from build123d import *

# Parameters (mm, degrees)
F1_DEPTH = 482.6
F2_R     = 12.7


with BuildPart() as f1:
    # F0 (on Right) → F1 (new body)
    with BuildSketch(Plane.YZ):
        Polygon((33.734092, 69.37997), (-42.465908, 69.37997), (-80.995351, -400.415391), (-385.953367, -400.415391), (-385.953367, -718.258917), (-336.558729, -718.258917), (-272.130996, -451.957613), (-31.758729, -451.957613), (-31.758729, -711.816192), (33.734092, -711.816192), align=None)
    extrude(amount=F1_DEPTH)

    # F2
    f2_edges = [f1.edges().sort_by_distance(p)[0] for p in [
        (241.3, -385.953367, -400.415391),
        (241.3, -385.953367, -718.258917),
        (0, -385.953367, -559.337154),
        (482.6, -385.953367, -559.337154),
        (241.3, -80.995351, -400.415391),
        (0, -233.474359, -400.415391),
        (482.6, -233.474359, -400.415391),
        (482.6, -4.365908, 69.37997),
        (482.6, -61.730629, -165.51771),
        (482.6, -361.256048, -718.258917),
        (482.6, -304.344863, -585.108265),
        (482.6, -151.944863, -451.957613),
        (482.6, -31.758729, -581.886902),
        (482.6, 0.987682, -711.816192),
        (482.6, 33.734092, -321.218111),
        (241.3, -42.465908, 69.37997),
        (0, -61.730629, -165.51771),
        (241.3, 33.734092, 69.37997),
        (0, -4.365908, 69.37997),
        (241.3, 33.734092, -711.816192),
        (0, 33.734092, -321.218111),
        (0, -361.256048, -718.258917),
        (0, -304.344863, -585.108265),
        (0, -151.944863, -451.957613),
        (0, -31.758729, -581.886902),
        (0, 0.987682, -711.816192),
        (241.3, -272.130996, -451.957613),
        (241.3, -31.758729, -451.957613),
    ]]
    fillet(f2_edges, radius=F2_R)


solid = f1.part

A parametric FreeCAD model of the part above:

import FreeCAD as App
import Part
import Sketcher
Q = App.Units.Quantity


def edges_at(feature, points):
    """Names of the edges that pass closest to the given points."""
    edges = feature.Shape.Edges
    near = lambda p: min(range(len(edges)), key=lambda i: edges[i].distToShape(Part.Vertex(*p))[0])
    return sorted({f"Edge{near(p) + 1}" for p in points})


def add_polygon(sketch, points):
    """Adds a closed chain of lines whose ends are joined by coincident constraints."""
    first, n = sketch.GeometryCount, len(points)
    for a, b in zip(points, points[1:] + points[:1]):
        sketch.addGeometry(Part.LineSegment(App.Vector(*a, 0), App.Vector(*b, 0)), False)
    for i in range(n):
        sketch.addConstraint(Sketcher.Constraint("Coincident", first + i, 2, first + (i + 1) % n, 1))

doc = App.newDocument("Part")
params = doc.addObject("Spreadsheet::Sheet", "Params")
for row, (alias, value) in enumerate([
    ("sketch1_width", "3 in"),
    ("pad1_length", "19 in"),
    ("fillet_radius", "0.5 in"),
], start=1):
    params.set(f"A{row}", alias)
    params.set(f"B{row}", "=" + value)
    params.setAlias(f"B{row}", alias)

body = doc.addObject("PartDesign::Body", "Body")

# Sketch on YZ plane
sketch1 = body.newObject("Sketcher::SketchObject", "Sketch")
sketch1.AttachmentSupport = (doc.getObject("YZ_Plane"), [""])
sketch1.MapMode = "FlatFace"
add_polygon(sketch1, [(33.734092, 69.37997), (-42.465908, 69.37997), (-80.995351, -400.415391), (-385.953367, -400.415391), (-385.953367, -718.258917), (-336.558729, -718.258917), (-272.130996, -451.957613), (-31.758729, -451.957613), (-31.758729, -711.816192), (33.734092, -711.816192)])  # lines 0-9
sketch1.addConstraint([
    Sketcher.Constraint("Horizontal", 0),
    Sketcher.Constraint("Horizontal", 2),
    Sketcher.Constraint("Vertical", 3),
    Sketcher.Constraint("Horizontal", 4),
    Sketcher.Constraint("Horizontal", 6),
    Sketcher.Constraint("Vertical", 7),
    Sketcher.Constraint("Horizontal", 8),
    Sketcher.Constraint("Vertical", 9),
    Sketcher.Constraint("DistanceX", 0, 2, 0, 1, Q("3 in")),
    Sketcher.Constraint("DistanceX", 4, 2, 6, 2, Q("12 in")),
    Sketcher.Constraint("DistanceX", 8, 1, 8, 2, Q("65.492821 mm")),
    Sketcher.Constraint("DistanceY", 7, 2, 7, 1, Q("259.858579 mm")),
    Sketcher.Constraint("DistanceY", 9, 1, 9, 2, Q("781.196162 mm")),
    Sketcher.Constraint("DistanceY", 7, 2, 1, 2, Q("311.400801 mm")),
    Sketcher.Constraint("DistanceX", 2, 2, 2, 1, Q("304.958016 mm")),
    Sketcher.Constraint("DistanceX", 4, 1, 4, 2, Q("49.394638 mm")),
    Sketcher.Constraint("DistanceX", 6, 1, 6, 2, Q("240.372267 mm")),
    Sketcher.Constraint("DistanceY", 3, 2, 3, 1, Q("317.843526 mm")),
    Sketcher.Constraint("DistanceY", -1, 1, 0, 2, Q("69.37997 mm")),
    Sketcher.Constraint("DistanceX", 1, 2, -1, 1, Q("80.995351 mm")),
])
sketch1.setExpression("Constraints[18]", "Params.sketch1_width")
pad1 = body.newObject("PartDesign::Pad", "Pad")
pad1.Profile = sketch1
pad1.setExpression("Length", "Params.pad1_length")
doc.recompute()

fillet = body.newObject("PartDesign::Fillet", "Fillet")
fillet.Base = (pad1, edges_at(pad1, [
    (241.3, -385.953, -400.415),
    (241.3, -385.953, -718.259),
    (0, -385.953, -559.337),
    (482.6, -385.953, -559.337),
    (241.3, -80.995, -400.415),
    (0, -233.474, -400.415),
    (482.6, -233.474, -400.415),
    (482.6, -4.366, 69.38),
    (482.6, -61.731, -165.518),
    (482.6, -361.256, -718.259),
    (482.6, -304.345, -585.108),
    (482.6, -151.945, -451.958),
    (482.6, -31.759, -581.887),
    (482.6, 0.988, -711.816),
    (482.6, 33.734, -321.218),
    (241.3, -42.466, 69.38),
    (0, -61.731, -165.518),
    (241.3, 33.734, 69.38),
    (0, -4.366, 69.38),
    (241.3, 33.734, -711.816),
    (0, 33.734, -321.218),
    (0, -361.256, -718.259),
    (0, -304.345, -585.108),
    (0, -151.945, -451.958),
    (0, -31.759, -581.887),
    (0, 0.988, -711.816),
    (241.3, -272.131, -451.958),
    (241.3, -31.759, -451.958),
]))
fillet.setExpression("Radius", "Params.fillet_radius")

doc.recompute()
